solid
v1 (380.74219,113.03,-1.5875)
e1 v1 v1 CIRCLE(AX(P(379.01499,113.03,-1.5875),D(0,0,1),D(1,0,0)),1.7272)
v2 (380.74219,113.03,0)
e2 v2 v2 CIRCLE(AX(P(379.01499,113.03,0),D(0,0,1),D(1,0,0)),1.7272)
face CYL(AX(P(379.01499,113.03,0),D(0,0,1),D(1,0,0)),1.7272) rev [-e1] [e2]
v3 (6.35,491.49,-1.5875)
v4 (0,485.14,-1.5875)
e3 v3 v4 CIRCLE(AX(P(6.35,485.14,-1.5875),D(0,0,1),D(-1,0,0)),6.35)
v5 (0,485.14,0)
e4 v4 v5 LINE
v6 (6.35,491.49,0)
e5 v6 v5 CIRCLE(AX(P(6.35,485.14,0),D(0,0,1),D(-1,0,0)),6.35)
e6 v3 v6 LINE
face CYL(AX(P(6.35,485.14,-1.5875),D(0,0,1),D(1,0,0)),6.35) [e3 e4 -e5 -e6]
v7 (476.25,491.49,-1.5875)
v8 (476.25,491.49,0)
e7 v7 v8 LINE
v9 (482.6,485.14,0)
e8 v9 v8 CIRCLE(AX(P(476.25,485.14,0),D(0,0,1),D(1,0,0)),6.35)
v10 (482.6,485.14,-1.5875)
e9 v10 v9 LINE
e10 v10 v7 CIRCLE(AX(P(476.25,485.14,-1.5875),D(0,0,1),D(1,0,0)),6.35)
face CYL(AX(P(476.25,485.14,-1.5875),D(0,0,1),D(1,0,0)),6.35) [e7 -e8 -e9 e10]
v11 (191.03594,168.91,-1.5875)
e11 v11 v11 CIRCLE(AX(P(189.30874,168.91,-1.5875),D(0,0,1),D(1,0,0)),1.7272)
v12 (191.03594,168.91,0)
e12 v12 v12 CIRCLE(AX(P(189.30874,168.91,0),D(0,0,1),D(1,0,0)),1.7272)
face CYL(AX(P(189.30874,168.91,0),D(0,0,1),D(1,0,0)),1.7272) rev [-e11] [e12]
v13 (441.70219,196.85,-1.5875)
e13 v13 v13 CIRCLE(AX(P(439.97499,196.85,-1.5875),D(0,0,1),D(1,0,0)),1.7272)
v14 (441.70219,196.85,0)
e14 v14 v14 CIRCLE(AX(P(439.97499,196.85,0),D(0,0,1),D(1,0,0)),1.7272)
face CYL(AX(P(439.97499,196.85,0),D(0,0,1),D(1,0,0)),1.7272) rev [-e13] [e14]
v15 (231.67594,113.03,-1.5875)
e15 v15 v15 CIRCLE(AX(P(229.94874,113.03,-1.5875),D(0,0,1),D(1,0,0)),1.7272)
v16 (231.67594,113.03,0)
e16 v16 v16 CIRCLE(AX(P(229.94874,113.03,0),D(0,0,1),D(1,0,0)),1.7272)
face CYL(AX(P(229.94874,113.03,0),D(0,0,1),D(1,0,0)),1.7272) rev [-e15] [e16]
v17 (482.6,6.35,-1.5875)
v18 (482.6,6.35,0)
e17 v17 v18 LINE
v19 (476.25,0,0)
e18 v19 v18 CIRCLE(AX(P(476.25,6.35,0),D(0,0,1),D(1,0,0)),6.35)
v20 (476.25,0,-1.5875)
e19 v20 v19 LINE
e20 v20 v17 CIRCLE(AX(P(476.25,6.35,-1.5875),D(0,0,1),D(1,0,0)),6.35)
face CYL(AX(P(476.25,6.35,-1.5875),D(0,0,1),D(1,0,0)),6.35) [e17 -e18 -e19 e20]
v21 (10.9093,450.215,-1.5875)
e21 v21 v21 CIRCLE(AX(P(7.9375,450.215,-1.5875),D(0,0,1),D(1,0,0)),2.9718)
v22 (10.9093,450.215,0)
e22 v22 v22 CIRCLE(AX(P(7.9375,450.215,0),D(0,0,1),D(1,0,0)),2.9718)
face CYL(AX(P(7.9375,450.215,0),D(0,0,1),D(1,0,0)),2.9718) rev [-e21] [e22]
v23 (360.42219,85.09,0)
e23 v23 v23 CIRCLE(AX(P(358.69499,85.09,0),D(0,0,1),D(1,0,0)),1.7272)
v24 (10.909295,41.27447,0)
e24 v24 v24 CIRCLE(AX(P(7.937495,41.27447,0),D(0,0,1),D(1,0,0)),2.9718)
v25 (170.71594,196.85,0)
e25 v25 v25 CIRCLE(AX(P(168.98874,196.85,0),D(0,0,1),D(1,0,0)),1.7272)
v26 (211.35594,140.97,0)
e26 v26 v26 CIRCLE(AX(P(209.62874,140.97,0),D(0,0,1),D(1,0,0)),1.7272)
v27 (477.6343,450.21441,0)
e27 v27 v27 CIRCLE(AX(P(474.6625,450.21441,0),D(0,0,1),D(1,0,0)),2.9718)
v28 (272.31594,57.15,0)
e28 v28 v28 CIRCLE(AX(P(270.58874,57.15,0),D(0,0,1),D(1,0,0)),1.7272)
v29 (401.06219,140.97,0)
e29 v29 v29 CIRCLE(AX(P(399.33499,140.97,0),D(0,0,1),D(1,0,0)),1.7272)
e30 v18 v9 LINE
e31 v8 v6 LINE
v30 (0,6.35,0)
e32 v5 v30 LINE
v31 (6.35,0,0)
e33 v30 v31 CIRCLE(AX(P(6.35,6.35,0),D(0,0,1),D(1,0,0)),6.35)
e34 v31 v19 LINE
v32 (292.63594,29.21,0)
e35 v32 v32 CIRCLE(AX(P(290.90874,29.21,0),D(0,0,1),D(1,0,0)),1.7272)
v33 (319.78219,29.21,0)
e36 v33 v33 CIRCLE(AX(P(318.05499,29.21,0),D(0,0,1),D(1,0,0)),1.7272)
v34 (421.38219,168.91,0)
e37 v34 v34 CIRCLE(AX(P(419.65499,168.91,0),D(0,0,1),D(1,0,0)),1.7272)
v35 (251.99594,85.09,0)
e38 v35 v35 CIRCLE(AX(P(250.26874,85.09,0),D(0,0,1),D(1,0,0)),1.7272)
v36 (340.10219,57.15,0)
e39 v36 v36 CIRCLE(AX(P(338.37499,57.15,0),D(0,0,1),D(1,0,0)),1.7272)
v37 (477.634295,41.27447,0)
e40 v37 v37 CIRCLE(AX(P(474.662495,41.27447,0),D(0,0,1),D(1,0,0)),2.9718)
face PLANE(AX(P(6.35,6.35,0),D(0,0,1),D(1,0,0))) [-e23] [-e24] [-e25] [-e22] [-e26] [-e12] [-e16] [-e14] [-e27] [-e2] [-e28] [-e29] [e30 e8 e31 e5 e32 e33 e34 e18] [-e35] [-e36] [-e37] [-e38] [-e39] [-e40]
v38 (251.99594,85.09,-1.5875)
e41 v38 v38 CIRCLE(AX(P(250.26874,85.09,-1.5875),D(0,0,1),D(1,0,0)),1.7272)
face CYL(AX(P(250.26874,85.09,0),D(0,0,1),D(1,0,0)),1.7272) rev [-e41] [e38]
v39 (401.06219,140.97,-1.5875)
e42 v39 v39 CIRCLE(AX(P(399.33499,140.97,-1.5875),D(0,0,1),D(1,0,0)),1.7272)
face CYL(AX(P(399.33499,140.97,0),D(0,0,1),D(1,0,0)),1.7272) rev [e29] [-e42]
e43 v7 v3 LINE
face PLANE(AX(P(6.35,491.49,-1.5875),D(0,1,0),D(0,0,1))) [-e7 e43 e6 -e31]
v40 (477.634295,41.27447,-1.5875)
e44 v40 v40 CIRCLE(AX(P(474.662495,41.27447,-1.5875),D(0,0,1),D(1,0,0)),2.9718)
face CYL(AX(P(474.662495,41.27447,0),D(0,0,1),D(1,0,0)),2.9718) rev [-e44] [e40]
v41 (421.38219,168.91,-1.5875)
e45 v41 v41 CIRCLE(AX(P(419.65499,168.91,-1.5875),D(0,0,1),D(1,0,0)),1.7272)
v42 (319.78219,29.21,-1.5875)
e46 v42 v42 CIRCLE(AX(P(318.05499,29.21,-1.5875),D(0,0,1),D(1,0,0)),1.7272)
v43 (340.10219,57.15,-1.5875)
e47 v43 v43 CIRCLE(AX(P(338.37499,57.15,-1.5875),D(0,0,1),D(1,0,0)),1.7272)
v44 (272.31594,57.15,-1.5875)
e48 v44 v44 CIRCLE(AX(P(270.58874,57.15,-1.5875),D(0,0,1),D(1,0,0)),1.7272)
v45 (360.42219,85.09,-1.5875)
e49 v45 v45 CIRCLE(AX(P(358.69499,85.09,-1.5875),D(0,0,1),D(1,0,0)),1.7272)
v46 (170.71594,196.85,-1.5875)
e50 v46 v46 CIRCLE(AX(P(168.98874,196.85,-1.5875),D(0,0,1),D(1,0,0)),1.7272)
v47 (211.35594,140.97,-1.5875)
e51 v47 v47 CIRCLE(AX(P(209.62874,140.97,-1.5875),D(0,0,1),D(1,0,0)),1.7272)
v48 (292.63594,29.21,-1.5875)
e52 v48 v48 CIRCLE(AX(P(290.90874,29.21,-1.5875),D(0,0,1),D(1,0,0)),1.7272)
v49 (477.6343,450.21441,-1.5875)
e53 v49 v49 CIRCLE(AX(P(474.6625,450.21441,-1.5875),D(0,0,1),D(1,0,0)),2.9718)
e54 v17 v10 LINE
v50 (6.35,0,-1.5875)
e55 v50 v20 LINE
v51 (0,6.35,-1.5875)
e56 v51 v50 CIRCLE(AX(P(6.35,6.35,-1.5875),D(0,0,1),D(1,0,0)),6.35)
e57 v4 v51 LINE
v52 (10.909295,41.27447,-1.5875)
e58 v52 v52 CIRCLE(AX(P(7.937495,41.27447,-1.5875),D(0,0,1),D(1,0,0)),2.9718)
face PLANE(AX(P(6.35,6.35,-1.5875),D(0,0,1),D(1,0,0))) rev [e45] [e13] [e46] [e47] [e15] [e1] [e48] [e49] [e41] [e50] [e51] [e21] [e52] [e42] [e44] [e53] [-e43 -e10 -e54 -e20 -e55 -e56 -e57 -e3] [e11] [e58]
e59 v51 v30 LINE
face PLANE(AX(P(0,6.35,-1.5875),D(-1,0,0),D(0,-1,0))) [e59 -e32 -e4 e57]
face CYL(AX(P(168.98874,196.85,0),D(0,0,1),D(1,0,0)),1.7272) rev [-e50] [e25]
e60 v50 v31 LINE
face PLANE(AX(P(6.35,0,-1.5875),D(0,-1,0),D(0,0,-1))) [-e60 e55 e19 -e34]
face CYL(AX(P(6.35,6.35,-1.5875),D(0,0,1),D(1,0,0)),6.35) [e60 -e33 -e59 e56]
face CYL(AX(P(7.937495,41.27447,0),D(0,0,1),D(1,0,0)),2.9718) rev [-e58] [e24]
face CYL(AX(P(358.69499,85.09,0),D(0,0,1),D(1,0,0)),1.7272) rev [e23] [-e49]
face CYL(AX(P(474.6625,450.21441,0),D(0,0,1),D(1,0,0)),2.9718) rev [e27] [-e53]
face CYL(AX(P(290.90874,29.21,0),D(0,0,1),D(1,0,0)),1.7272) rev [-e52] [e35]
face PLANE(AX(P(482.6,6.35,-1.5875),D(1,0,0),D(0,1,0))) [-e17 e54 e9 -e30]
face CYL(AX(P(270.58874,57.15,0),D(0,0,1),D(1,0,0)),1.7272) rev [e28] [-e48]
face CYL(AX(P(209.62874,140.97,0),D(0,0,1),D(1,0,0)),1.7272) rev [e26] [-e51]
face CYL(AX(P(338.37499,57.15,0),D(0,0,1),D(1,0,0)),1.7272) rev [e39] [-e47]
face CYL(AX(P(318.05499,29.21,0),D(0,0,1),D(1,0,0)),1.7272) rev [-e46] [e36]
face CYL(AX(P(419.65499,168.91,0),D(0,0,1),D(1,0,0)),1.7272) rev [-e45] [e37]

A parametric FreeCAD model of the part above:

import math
import FreeCAD as App
import Part
import Sketcher

V = App.Vector
Q = App.Units.Quantity

doc = App.newDocument("Part")
body = doc.addObject("PartDesign::Body", "Body")

# Sketch on XY plane
sketch1 = body.newObject("Sketcher::SketchObject", "Sketch")
sketch1.AttachmentSupport = (doc.getObject("XY_Plane"), [""])
sketch1.MapMode = "FlatFace"
sketch1.addGeometry([
    Part.LineSegment(V(6, 0, 0), V(476, 0, 0)),  # 0
    Part.ArcOfCircle(Part.Circle(V(476, 6, 0), V(0, 0, 1), 6), math.radians(-90), math.radians(0)),  # 1
    Part.LineSegment(V(483, 6, 0), V(483, 485, 0)),  # 2
    Part.ArcOfCircle(Part.Circle(V(476, 485, 0), V(0, 0, 1), 6), math.radians(0), math.radians(90)),  # 3
    Part.LineSegment(V(476, 491, 0), V(6, 491, 0)),  # 4
    Part.ArcOfCircle(Part.Circle(V(6, 485, 0), V(0, 0, 1), 6), math.radians(90), math.radians(180)),  # 5
    Part.LineSegment(V(0, 485, 0), V(0, 6, 0)),  # 6
    Part.ArcOfCircle(Part.Circle(V(6, 6, 0), V(0, 0, 1), 6), math.radians(180), math.radians(270)),  # 7
], False)
sketch1.addConstraint([
    Sketcher.Constraint("Tangent", 0, 2, 1, 1),
    Sketcher.Constraint("Tangent", 1, 2, 2, 1),
    Sketcher.Constraint("Tangent", 2, 2, 3, 1),
    Sketcher.Constraint("Tangent", 3, 2, 4, 1),
    Sketcher.Constraint("Tangent", 4, 2, 5, 1),
    Sketcher.Constraint("Tangent", 5, 2, 6, 1),
    Sketcher.Constraint("Tangent", 6, 2, 7, 1),
    Sketcher.Constraint("Tangent", 7, 2, 0, 1),
    Sketcher.Constraint("Horizontal", 0),
    Sketcher.Constraint("Vertical", 2),
    Sketcher.Constraint("Horizontal", 4),
    Sketcher.Constraint("Vertical", 6),
    Sketcher.Constraint("Equal", 1, 3),
    Sketcher.Constraint("Equal", 3, 5),
    Sketcher.Constraint("Equal", 5, 7),
    Sketcher.Constraint("PointOnObject", 0, 2, -1),
    Sketcher.Constraint("PointOnObject", 5, 2, -2),
    Sketcher.Constraint("Radius", 1, Q("0.25 in")),
    Sketcher.Constraint("DistanceX", 0, 1, 0, 2, Q("18.5 in")),
    Sketcher.Constraint("DistanceY", 2, 1, 2, 2, Q("18.85 in")),
])
pad1 = body.newObject("PartDesign::Pad", "Pad")
pad1.Profile = sketch1
pad1.Length = Q("0.0625 in")
pad1.Reversed = True

# Sketch on XY plane
sketch2 = body.newObject("Sketcher::SketchObject", "Sketch001")
sketch2.AttachmentSupport = (doc.getObject("XY_Plane"), [""])
sketch2.MapMode = "FlatFace"
sketch2.addGeometry([
    Part.Circle(V(474.7, 41.3, 0), V(0, 0, 1), 3),
    Part.Circle(V(474.7, 450.2, 0), V(0, 0, 1), 3),
    Part.Circle(V(7.9, 450.2, 0), V(0, 0, 1), 3),
    Part.Circle(V(7.9, 41.3, 0), V(0, 0, 1), 3),
], False)
sketch2.addConstraint([
    Sketcher.Constraint("Equal", 0, 1),
    Sketcher.Constraint("Equal", 1, 2),
    Sketcher.Constraint("Equal", 2, 3),
    Sketcher.Constraint("Horizontal", 0, 3, 3, 3),
    Sketcher.Constraint("Diameter", 0, Q("0.234 in")),
    Sketcher.Constraint("DistanceX", -1, 1, 1, 3, Q("18.6875 in")),
    Sketcher.Constraint("DistanceX", -1, 1, 2, 3, Q("0.3125 in")),
    Sketcher.Constraint("DistanceY", -1, 1, 2, 3, Q("17.725 in")),
    Sketcher.Constraint("DistanceX", 2, 3, 0, 3, Q("18.3749998 in")),
    Sketcher.Constraint("DistanceX", 3, 3, 0, 3, Q("18.375 in")),
    Sketcher.Constraint("DistanceY", -1, 1, 0, 3, Q("41.27447 mm")),
    Sketcher.Constraint("DistanceY", -1, 1, 1, 3, Q("450.21441 mm")),
])
doc.recompute()
hole = body.newObject("PartDesign::Hole", "Hole")
hole.Profile = sketch2
hole.ThreadType = "None"
hole.Diameter = Q("0.234 in")
hole.DepthType = "Dimension"
hole.Depth = Q("0.25 in")
hole.DrillPoint = "Angled"
hole.DrillPointAngle = 118

# Sketch on XY plane
sketch3 = body.newObject("Sketcher::SketchObject", "Sketch002")
sketch3.AttachmentSupport = (doc.getObject("XY_Plane"), [""])
sketch3.MapMode = "FlatFace"
sketch3.addGeometry([
    Part.Circle(V(169, 196.8, 0), V(0, 0, 1), 1.7),  # 0
    Part.Circle(V(189.3, 168.9, 0), V(0, 0, 1), 1.7),  # 1
    Part.Circle(V(209.6, 141, 0), V(0, 0, 1), 1.7),  # 2
    Part.Circle(V(229.9, 113, 0), V(0, 0, 1), 1.7),  # 3
    Part.Circle(V(250.3, 85.1, 0), V(0, 0, 1), 1.7),  # 4
    Part.Circle(V(270.6, 57.1, 0), V(0, 0, 1), 1.7),  # 5
    Part.Circle(V(290.9, 29.2, 0), V(0, 0, 1), 1.7),  # 6
    Part.Circle(V(318.1, 29.2, 0), V(0, 0, 1), 1.7),  # 7
    Part.Circle(V(338.4, 57.1, 0), V(0, 0, 1), 1.7),  # 8
    Part.Circle(V(358.7, 85.1, 0), V(0, 0, 1), 1.7),  # 9
    Part.Circle(V(379, 113, 0), V(0, 0, 1), 1.7),  # 10
    Part.Circle(V(440, 196.8, 0), V(0, 0, 1), 1.7),  # 11
    Part.Circle(V(419.7, 168.9, 0), V(0, 0, 1), 1.7),  # 12
    Part.Circle(V(399.3, 141, 0), V(0, 0, 1), 1.7),  # 13
], False)
sketch3.addConstraint([
    Sketcher.Constraint("Equal", 0, 1),
    Sketcher.Constraint("Equal", 1, 2),
    Sketcher.Constraint("Equal", 2, 3),
    Sketcher.Constraint("Equal", 3, 4),
    Sketcher.Constraint("Equal", 4, 5),
    Sketcher.Constraint("Equal", 5, 6),
    Sketcher.Constraint("Equal", 6, 7),
    Sketcher.Constraint("Equal", 7, 8),
    Sketcher.Constraint("Equal", 8, 9),
    Sketcher.Constraint("Equal", 9, 10),
    Sketcher.Constraint("Equal", 10, 11),
    Sketcher.Constraint("Equal", 11, 12),
    Sketcher.Constraint("Equal", 12, 13),
    Sketcher.Constraint("Horizontal", 6, 3, 7, 3),
    Sketcher.Constraint("Horizontal", 5, 3, 8, 3),
    Sketcher.Constraint("Horizontal", 4, 3, 9, 3),
    Sketcher.Constraint("Horizontal", 3, 3, 10, 3),
    Sketcher.Constraint("Horizontal", 0, 3, 11, 3),
    Sketcher.Constraint("Horizontal", 1, 3, 12, 3),
    Sketcher.Constraint("Horizontal", 2, 3, 13, 3),
    Sketcher.Constraint("Diameter", 0, Q("0.136 in")),
    Sketcher.Constraint("DistanceX", 0, 3, 5, 3, Q("4 in")),
    Sketcher.Constraint("DistanceX", 1, 3, 6, 3, Q("4 in")),
    Sketcher.Constraint("DistanceX", 8, 3, 11, 3, Q("4 in")),
    Sketcher.Constraint("DistanceX", 7, 3, 12, 3, Q("4 in")),
    Sketcher.Constraint("DistanceX", 0, 3, 1, 3, Q("0.8 in")),
    Sketcher.Constraint("DistanceY", 1, 3, 0, 3, Q("1.1 in")),
    Sketcher.Constraint("DistanceX", 1, 3, 2, 3, Q("0.8 in")),
    Sketcher.Constraint("DistanceY", 2, 3, 1, 3, Q("1.1 in")),
    Sketcher.Constraint("DistanceX", 2, 3, 3, 3, Q("0.8 in")),
    Sketcher.Constraint("DistanceY", 3, 3, 2, 3, Q("1.1 in")),
    Sketcher.Constraint("DistanceX", 3, 3, 4, 3, Q("0.8 in")),
    Sketcher.Constraint("DistanceY", 4, 3, 3, 3, Q("1.1 in")),
    Sketcher.Constraint("DistanceY", 5, 3, 4, 3, Q("1.1 in")),
    Sketcher.Constraint("DistanceY", 6, 3, 5, 3, Q("1.1 in")),
    Sketcher.Constraint("DistanceX", 7, 3, 8, 3, Q("0.8 in")),
    Sketcher.Constraint("DistanceX", 8, 3, 9, 3, Q("0.8 in")),
    Sketcher.Constraint("DistanceX", 9, 3, 10, 3, Q("0.8 in")),
    Sketcher.Constraint("DistanceX", 10, 3, 13, 3, Q("0.8 in")),
    Sketcher.Constraint("DistanceY", -1, 1, 0, 3, Q("7.75 in")),
    Sketcher.Constraint("DistanceX", 3, 3, 7, 3, Q("3.46875 in")),
    Sketcher.Constraint("DistanceX", -1, 1, 0, 3, Q("6.6531 in")),
])
doc.recompute()
hole2 = body.newObject("PartDesign::Hole", "Hole001")
hole2.Profile = sketch3
hole2.ThreadType = "None"
hole2.Diameter = Q("0.136 in")
hole2.DepthType = "Dimension"
hole2.Depth = Q("0.75 in")
hole2.DrillPoint = "Angled"
hole2.DrillPointAngle = 118

doc.recompute()
